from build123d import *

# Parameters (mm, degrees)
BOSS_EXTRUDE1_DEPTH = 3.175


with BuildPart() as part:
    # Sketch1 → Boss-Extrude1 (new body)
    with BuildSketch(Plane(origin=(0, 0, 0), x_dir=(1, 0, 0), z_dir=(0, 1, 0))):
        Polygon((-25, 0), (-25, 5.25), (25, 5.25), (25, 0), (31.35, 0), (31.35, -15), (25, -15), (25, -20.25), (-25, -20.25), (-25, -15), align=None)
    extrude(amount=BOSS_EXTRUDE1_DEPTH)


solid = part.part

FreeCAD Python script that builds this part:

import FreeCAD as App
import Part
import Sketcher

V = App.Vector
Q = App.Units.Quantity


def add_polygon(sketch, points):
    """Adds a closed chain of lines whose ends are joined by coincident constraints."""
    first, n = sketch.GeometryCount, len(points)
    for a, b in zip(points, points[1:] + points[:1]):
        sketch.addGeometry(Part.LineSegment(App.Vector(*a, 0), App.Vector(*b, 0)), False)
    for i in range(n):
        sketch.addConstraint(Sketcher.Constraint("Coincident", first + i, 2, first + (i + 1) % n, 1))

doc = App.newDocument("Part")
body = doc.addObject("PartDesign::Body", "Body")

sketch1 = body.newObject("Sketcher::SketchObject", "Sketch")
sketch1.AttachmentSupport = (doc.getObject("XZ_Plane"), [""])
sketch1.MapMode = "FlatFace"
add_polygon(sketch1, [(-25, -5.25), (-25, 20.25), (25, 20.25), (25, 15), (31.35, 15), (31.35, 0), (25, 0), (25, -5.25)])
sketch1.addConstraint(Sketcher.Constraint("Vertical", 0))
sketch1.addConstraint(Sketcher.Constraint("Horizontal", 1))
sketch1.addConstraint(Sketcher.Constraint("Vertical", 2))
sketch1.addConstraint(Sketcher.Constraint("Horizontal", 3))
sketch1.addConstraint(Sketcher.Constraint("Vertical", 4))
sketch1.addConstraint(Sketcher.Constraint("Horizontal", 5))
sketch1.addConstraint(Sketcher.Constraint("Vertical", 6))
sketch1.addConstraint(Sketcher.Constraint("Horizontal", 7))
sketch1.addConstraint(Sketcher.Constraint("PointOnObject", 4, 2, -1))
sketch1.addConstraint(Sketcher.Constraint("Vertical", 2, 2, 5, 2))
sketch1.addConstraint(Sketcher.Constraint("Equal", 2, 6))
sketch1.addConstraint(Sketcher.Constraint("DistanceX", 1, 1, 1, 2, Q("50 mm")))
sketch1.addConstraint(Sketcher.Constraint("DistanceY", 4, 2, 4, 1, Q("15 mm")))
sketch1.addConstraint(Sketcher.Constraint("DistanceY", 0, 1, 0, 2, Q("25.5 mm")))
sketch1.addConstraint(Sketcher.Constraint("DistanceX", 0, 2, -1, 1, Q("25 mm")))
sketch1.addConstraint(Sketcher.Constraint("DistanceX", 3, 1, 3, 2, Q("6.35 mm")))
pad1 = body.newObject("PartDesign::Pad", "Pad")
pad1.Profile = sketch1
pad1.Length = 3.175
pad1.Reversed = True

doc.recompute()
